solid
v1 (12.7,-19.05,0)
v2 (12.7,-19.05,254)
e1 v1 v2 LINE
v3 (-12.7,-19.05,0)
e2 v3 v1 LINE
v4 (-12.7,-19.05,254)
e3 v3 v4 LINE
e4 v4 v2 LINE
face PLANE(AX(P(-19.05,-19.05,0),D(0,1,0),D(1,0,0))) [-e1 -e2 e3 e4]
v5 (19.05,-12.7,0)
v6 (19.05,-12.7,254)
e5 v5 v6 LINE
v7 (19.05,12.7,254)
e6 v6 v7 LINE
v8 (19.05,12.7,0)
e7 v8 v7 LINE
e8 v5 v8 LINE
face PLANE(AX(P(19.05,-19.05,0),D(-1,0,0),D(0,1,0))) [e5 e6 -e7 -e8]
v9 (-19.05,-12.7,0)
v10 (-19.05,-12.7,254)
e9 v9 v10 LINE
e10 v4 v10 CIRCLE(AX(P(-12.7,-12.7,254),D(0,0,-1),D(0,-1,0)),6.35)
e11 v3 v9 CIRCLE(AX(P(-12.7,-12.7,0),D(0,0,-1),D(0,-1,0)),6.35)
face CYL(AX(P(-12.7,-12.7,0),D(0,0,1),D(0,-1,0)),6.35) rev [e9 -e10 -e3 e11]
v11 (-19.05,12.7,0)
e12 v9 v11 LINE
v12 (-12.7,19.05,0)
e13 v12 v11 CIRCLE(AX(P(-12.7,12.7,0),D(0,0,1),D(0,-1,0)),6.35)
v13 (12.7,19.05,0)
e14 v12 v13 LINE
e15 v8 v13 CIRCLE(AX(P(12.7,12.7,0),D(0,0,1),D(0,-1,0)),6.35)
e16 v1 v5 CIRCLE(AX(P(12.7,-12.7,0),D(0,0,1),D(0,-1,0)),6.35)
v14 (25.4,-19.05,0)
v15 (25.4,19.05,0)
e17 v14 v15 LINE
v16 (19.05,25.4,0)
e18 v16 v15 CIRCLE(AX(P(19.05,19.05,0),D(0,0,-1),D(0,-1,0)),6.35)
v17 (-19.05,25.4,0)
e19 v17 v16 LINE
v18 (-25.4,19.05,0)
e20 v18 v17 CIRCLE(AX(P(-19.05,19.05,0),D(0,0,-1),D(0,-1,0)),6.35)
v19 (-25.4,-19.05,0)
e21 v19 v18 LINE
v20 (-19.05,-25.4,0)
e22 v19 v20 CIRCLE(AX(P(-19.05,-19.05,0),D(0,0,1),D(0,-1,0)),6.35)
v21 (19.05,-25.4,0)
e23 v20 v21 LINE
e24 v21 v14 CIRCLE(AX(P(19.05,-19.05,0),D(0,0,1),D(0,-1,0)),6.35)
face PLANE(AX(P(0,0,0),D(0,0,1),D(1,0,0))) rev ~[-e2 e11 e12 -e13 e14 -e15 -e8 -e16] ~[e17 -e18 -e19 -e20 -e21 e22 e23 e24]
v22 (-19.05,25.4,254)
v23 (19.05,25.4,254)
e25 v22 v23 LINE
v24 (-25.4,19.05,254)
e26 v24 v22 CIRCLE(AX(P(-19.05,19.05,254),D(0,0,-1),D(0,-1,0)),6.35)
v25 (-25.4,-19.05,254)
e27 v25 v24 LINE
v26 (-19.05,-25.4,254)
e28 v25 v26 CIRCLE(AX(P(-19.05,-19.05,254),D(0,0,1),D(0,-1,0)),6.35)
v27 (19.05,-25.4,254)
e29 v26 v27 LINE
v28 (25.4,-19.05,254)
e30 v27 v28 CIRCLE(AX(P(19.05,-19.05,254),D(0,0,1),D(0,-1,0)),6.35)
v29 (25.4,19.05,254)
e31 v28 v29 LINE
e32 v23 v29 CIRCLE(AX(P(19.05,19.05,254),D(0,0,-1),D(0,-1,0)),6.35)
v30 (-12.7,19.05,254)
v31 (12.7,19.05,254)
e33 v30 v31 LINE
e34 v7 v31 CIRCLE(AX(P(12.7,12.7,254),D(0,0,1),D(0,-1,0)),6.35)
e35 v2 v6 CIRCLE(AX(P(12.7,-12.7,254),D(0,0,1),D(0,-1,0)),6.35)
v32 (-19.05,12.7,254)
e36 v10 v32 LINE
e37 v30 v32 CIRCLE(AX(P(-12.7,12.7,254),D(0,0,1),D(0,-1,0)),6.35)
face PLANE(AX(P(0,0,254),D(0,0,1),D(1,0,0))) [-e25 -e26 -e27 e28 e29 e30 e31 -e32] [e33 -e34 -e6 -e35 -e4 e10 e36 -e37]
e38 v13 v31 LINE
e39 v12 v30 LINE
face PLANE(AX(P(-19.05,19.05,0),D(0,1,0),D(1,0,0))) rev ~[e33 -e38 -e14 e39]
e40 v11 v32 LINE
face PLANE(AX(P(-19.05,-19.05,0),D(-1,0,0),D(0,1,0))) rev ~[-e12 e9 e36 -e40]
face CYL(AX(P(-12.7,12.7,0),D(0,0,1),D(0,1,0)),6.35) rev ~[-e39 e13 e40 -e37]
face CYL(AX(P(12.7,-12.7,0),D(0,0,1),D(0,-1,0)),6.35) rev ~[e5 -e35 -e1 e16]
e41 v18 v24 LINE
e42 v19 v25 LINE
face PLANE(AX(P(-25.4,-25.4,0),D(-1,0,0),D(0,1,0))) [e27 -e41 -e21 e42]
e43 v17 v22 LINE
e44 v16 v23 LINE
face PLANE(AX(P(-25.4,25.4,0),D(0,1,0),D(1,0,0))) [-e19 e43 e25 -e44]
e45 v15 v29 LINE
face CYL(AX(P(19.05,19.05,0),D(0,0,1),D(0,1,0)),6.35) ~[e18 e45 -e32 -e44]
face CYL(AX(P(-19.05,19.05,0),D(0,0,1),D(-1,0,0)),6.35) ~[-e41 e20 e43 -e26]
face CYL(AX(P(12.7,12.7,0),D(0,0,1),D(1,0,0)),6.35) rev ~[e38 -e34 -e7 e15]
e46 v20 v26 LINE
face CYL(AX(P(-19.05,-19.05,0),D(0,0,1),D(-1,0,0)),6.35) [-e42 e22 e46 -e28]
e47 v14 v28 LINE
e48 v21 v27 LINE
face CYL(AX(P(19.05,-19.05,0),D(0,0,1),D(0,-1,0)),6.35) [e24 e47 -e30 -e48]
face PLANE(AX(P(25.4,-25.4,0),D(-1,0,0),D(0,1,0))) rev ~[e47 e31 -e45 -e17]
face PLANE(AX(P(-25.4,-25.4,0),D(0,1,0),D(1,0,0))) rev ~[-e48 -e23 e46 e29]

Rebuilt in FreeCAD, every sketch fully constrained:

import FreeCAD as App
import Part
import Sketcher
Q = App.Units.Quantity


def edges_at(feature, points):
    """Names of the edges that pass closest to the given points."""
    edges = feature.Shape.Edges
    near = lambda p: min(range(len(edges)), key=lambda i: edges[i].distToShape(Part.Vertex(*p))[0])
    return sorted({f"Edge{near(p) + 1}" for p in points})

doc = App.newDocument("Part")
params = doc.addObject("Spreadsheet::Sheet", "Params")
for row, (alias, value) in enumerate([
    ("sketch1_width", "2 in"),
    ("sketch1_width2", "1.5 in"),
    ("pad1_length", "10 in"),
    ("fillet_radius", "0.25 in"),
    ("fillet2_radius", "0.25 in"),
], start=1):
    params.set(f"A{row}", alias)
    params.set(f"B{row}", "=" + value)
    params.setAlias(f"B{row}", alias)

body = doc.addObject("PartDesign::Body", "Body")

sketch1 = body.newObject("Sketcher::SketchObject", "Sketch")
sketch1.AttachmentSupport = (doc.getObject("XY_Plane"), [""])
sketch1.MapMode = "FlatFace"
sketch1.addGeometry(Part.LineSegment(App.Vector(-25.4, 25.4, 0), App.Vector(-25.4, -25.4, 0)), False)
sketch1.addGeometry(Part.LineSegment(App.Vector(-25.4, -25.4, 0), App.Vector(25.4, -25.4, 0)), False)
sketch1.addGeometry(Part.LineSegment(App.Vector(25.4, -25.4, 0), App.Vector(25.4, 25.4, 0)), False)
sketch1.addGeometry(Part.LineSegment(App.Vector(25.4, 25.4, 0), App.Vector(-25.4, 25.4, 0)), False)
sketch1.addGeometry(Part.LineSegment(App.Vector(19.05, -19.05, 0), App.Vector(-19.05, -19.05, 0)), False)
sketch1.addGeometry(Part.LineSegment(App.Vector(-19.05, -19.05, 0), App.Vector(-19.05, 19.05, 0)), False)
sketch1.addGeometry(Part.LineSegment(App.Vector(-19.05, 19.05, 0), App.Vector(19.05, 19.05, 0)), False)
sketch1.addGeometry(Part.LineSegment(App.Vector(19.05, 19.05, 0), App.Vector(19.05, -19.05, 0)), False)
sketch1.addConstraint(Sketcher.Constraint("Coincident", 0, 2, 1, 1))
sketch1.addConstraint(Sketcher.Constraint("Coincident", 1, 2, 2, 1))
sketch1.addConstraint(Sketcher.Constraint("Coincident", 2, 2, 3, 1))
sketch1.addConstraint(Sketcher.Constraint("Coincident", 3, 2, 0, 1))
sketch1.addConstraint(Sketcher.Constraint("Coincident", 4, 2, 5, 1))
sketch1.addConstraint(Sketcher.Constraint("Coincident", 5, 2, 6, 1))
sketch1.addConstraint(Sketcher.Constraint("Coincident", 6, 2, 7, 1))
sketch1.addConstraint(Sketcher.Constraint("Coincident", 7, 2, 4, 1))
sketch1.addConstraint(Sketcher.Constraint("Vertical", 0))
sketch1.addConstraint(Sketcher.Constraint("Horizontal", 1))
sketch1.addConstraint(Sketcher.Constraint("Vertical", 2))
sketch1.addConstraint(Sketcher.Constraint("Horizontal", 3))
sketch1.addConstraint(Sketcher.Constraint("Horizontal", 4))
sketch1.addConstraint(Sketcher.Constraint("Vertical", 5))
sketch1.addConstraint(Sketcher.Constraint("Horizontal", 6))
sketch1.addConstraint(Sketcher.Constraint("Vertical", 7))
sketch1.addConstraint(Sketcher.Constraint("Symmetric", 0, 2, 2, 2, -1, 1))
sketch1.addConstraint(Sketcher.Constraint("Symmetric", 4, 2, 6, 2, -1, 1))
sketch1.addConstraint(Sketcher.Constraint("Equal", 3, 0))
sketch1.addConstraint(Sketcher.Constraint("Equal", 6, 5))
sketch1.addConstraint(Sketcher.Constraint("DistanceX", 1, 1, 1, 2, Q("2 in")))
sketch1.addConstraint(Sketcher.Constraint("DistanceX", 4, 2, 4, 1, Q("1.5 in")))
sketch1.setExpression("Constraints[20]", "Params.sketch1_width")
sketch1.setExpression("Constraints[21]", "Params.sketch1_width2")
pad1 = body.newObject("PartDesign::Pad", "Pad")
pad1.Profile = sketch1
pad1.setExpression("Length", "Params.pad1_length")
doc.recompute()

fillet = body.newObject("PartDesign::Fillet", "Fillet")
fillet.Base = (pad1, edges_at(pad1, [
    (-25.4, 25.4, 127),
    (-25.4, -25.4, 127),
    (19.05, -19.05, 127),
    (25.4, 25.4, 127),
    (-19.05, -19.05, 127),
    (-19.05, 19.05, 127),
    (19.05, 19.05, 127),
]))
fillet.setExpression("Radius", "Params.fillet_radius")
doc.recompute()

fillet2 = body.newObject("PartDesign::Fillet", "Fillet001")
fillet2.Base = (fillet, edges_at(fillet, [(25.4, -25.4, 127)]))
fillet2.setExpression("Radius", "Params.fillet2_radius")

doc.recompute()
